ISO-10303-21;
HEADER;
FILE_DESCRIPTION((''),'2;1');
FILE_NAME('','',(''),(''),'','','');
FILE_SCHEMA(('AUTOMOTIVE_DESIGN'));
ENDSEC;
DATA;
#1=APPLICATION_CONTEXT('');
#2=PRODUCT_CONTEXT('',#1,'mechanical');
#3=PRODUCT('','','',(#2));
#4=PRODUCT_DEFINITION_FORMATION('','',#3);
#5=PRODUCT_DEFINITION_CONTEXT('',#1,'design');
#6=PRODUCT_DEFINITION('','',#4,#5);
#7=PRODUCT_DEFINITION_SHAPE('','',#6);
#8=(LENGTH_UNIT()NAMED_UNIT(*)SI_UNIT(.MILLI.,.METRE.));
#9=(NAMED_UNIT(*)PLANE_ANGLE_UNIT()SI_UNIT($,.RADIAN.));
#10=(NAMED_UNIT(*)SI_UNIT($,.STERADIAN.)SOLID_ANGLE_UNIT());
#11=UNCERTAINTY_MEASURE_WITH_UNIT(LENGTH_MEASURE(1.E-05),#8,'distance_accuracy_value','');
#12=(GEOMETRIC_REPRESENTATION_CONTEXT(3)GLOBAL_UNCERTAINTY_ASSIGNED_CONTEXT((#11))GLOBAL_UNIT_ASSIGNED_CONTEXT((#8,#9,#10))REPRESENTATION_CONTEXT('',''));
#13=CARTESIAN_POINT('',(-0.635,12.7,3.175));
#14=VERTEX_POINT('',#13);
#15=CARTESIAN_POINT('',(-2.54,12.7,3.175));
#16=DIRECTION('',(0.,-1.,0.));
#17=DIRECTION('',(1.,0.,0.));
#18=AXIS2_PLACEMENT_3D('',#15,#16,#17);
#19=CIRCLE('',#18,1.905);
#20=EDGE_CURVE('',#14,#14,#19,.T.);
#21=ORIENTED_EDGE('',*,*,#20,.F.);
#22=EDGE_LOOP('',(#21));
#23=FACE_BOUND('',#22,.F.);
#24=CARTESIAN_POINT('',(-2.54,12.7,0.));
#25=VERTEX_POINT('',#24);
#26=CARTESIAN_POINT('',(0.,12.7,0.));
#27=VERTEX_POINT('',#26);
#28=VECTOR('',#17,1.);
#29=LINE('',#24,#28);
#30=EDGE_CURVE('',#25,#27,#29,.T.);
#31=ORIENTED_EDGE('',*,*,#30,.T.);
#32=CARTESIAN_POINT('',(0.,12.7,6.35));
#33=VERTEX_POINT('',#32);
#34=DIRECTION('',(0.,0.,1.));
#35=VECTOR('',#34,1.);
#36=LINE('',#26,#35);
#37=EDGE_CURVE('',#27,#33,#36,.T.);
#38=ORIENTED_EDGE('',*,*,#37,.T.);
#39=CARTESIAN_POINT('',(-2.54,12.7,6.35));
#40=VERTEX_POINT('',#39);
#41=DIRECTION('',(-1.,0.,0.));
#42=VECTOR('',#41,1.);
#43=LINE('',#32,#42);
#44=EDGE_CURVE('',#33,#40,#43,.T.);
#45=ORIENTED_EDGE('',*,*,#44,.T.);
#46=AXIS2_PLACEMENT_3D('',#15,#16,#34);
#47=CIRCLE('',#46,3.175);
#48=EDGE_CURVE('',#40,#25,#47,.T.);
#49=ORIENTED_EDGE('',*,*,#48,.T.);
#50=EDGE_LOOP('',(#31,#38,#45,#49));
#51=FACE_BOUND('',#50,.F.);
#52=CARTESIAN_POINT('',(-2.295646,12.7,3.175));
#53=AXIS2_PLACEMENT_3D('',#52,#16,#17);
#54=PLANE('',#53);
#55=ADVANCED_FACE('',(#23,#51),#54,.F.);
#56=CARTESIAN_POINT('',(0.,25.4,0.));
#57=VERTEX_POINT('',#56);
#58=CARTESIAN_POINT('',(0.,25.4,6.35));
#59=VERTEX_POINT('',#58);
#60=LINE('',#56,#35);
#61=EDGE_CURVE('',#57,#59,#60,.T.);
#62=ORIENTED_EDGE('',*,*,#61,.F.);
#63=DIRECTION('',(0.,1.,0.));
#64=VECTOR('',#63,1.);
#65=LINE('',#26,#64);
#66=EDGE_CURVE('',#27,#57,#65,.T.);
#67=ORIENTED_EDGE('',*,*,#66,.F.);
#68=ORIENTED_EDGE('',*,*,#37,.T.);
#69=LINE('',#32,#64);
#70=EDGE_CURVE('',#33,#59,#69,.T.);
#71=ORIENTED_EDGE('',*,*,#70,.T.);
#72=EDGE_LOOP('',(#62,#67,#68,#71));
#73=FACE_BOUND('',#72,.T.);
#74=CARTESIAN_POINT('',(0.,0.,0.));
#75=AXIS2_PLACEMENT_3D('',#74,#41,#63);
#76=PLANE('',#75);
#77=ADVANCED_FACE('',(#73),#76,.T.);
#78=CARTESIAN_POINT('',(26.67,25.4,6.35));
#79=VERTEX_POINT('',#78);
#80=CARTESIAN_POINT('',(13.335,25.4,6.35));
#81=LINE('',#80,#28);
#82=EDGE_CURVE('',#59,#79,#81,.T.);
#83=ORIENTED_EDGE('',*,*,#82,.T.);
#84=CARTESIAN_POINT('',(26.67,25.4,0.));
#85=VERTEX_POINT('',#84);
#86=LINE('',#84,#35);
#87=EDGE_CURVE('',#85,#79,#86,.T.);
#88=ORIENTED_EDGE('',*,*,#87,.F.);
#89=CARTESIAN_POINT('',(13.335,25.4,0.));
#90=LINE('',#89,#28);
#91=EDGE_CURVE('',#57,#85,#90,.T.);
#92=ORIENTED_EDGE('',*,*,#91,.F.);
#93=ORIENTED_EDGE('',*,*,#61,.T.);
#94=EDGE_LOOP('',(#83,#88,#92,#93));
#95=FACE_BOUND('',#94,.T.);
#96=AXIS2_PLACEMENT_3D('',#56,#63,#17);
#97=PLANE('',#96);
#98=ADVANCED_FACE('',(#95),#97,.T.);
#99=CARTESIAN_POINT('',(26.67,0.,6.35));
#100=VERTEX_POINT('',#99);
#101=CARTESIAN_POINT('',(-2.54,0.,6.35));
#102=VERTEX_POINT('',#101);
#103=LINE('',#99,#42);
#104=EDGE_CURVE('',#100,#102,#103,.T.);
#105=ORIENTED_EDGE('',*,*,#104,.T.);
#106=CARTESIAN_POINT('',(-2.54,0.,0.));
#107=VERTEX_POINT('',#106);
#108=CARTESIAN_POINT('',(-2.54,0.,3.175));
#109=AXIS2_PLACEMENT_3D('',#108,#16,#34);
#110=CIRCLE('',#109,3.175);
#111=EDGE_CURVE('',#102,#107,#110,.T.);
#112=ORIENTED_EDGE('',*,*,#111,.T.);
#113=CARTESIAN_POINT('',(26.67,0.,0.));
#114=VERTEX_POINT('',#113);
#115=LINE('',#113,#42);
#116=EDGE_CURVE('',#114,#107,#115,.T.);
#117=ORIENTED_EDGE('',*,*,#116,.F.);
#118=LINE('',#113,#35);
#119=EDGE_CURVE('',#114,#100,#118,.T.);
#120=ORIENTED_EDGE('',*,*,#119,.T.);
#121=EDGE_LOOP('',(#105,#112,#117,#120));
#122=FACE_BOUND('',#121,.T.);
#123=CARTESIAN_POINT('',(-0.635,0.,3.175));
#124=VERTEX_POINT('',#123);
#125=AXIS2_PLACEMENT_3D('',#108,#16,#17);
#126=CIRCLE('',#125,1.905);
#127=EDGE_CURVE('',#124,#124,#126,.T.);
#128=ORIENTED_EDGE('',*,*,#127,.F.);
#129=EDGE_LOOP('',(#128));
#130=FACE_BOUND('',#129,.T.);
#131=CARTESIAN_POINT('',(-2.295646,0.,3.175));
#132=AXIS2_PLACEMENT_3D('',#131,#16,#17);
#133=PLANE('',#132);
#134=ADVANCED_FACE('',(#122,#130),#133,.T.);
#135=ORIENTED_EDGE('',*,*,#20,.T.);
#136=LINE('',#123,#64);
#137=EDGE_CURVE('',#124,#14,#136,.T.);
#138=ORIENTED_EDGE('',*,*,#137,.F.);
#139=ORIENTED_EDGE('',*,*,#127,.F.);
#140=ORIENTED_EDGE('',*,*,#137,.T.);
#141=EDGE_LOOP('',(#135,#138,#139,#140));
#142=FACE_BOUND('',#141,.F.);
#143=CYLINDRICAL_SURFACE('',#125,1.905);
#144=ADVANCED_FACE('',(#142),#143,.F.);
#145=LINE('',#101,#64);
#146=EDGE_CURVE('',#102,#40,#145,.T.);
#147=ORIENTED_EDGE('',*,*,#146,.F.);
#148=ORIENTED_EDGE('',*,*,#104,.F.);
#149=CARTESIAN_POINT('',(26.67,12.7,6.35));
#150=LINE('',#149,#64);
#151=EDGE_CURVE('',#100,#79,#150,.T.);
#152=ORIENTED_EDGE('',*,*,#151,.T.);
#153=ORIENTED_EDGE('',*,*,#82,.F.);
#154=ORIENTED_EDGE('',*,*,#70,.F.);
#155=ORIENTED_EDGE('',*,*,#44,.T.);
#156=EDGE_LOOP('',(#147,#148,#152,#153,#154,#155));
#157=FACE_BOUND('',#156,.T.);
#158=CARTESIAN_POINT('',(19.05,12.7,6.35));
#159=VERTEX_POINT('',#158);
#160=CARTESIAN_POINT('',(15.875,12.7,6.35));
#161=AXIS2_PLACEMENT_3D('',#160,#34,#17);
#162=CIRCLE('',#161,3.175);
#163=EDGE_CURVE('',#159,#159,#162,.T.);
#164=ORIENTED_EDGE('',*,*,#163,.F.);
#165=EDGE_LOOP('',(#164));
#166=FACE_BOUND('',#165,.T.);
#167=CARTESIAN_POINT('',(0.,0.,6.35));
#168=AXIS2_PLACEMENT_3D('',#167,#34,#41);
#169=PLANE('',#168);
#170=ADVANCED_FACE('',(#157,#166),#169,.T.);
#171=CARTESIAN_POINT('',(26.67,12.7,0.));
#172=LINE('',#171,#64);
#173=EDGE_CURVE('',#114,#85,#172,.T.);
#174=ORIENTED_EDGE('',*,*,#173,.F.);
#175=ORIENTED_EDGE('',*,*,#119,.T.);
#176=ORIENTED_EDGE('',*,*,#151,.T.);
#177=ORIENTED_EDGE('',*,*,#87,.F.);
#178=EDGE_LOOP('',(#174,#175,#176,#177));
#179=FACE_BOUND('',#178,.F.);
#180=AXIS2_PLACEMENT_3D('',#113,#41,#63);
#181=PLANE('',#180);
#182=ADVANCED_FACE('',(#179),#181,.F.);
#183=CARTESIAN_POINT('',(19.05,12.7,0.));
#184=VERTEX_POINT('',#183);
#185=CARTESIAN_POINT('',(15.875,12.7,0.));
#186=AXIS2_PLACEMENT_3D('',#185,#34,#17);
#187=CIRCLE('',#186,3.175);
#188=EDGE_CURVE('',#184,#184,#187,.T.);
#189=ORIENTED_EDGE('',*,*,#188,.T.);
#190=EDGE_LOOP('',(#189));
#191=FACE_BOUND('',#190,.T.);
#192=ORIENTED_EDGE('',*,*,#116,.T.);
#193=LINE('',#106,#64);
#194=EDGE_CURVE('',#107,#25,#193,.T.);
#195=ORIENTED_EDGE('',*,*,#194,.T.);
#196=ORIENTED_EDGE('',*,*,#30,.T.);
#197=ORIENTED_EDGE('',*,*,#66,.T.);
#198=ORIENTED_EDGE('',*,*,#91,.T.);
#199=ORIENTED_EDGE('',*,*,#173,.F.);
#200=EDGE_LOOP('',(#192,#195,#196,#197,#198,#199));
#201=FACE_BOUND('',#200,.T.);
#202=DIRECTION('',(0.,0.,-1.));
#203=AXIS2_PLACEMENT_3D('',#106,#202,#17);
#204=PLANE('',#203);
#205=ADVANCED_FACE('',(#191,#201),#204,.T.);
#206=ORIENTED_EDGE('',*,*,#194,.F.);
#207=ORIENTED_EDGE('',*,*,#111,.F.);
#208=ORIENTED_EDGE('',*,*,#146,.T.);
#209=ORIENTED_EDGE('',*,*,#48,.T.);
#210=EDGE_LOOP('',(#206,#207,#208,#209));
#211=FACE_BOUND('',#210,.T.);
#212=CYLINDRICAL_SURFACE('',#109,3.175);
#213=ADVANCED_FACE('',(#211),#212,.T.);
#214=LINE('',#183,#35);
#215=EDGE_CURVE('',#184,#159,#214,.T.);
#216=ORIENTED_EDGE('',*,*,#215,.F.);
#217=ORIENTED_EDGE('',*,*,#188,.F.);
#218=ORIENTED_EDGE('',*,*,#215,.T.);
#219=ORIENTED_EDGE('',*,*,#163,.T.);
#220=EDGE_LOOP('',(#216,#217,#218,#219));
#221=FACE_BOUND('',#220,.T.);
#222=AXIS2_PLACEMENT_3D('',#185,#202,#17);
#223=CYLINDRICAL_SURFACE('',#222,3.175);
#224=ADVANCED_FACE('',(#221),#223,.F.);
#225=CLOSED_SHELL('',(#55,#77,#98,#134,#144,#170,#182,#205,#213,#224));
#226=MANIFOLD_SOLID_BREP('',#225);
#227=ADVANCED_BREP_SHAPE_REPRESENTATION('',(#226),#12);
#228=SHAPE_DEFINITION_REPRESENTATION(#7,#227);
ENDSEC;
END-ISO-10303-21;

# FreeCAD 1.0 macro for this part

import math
import FreeCAD as App
import Part
import Sketcher

V = App.Vector
Q = App.Units.Quantity


def add_polygon(sketch, points):
    """Adds a closed chain of lines whose ends are joined by coincident constraints."""
    first, n = sketch.GeometryCount, len(points)
    for a, b in zip(points, points[1:] + points[:1]):
        sketch.addGeometry(Part.LineSegment(App.Vector(*a, 0), App.Vector(*b, 0)), False)
    for i in range(n):
        sketch.addConstraint(Sketcher.Constraint("Coincident", first + i, 2, first + (i + 1) % n, 1))

doc = App.newDocument("Part")
body = doc.addObject("PartDesign::Body", "Body")

# Sketch on XY plane
sketch1 = body.newObject("Sketcher::SketchObject", "Sketch")
sketch1.AttachmentSupport = (doc.getObject("XY_Plane"), [""])
sketch1.MapMode = "FlatFace"
add_polygon(sketch1, [(0, 25.4), (0, 0), (26.7, 0), (26.7, 25.4)])  # lines 0-3
sketch1.addGeometry(Part.Circle(V(15.9, 12.7, 0), V(0, 0, 1), 3.2), False)  # 4
sketch1.addConstraint(Sketcher.Constraint("Vertical", 0))
sketch1.addConstraint(Sketcher.Constraint("Horizontal", 1))
sketch1.addConstraint(Sketcher.Constraint("Vertical", 2))
sketch1.addConstraint(Sketcher.Constraint("Horizontal", 3))
sketch1.addConstraint(Sketcher.Constraint("Coincident", 0, 2, -1, 1))
sketch1.addConstraint(Sketcher.Constraint("Diameter", 4, Q("0.25 in")))
sketch1.addConstraint(Sketcher.Constraint("DistanceY", 0, 2, 0, 1, Q("1 in")))
sketch1.addConstraint(Sketcher.Constraint("DistanceX", 1, 1, 1, 2, Q("1.05 in")))
sketch1.addConstraint(Sketcher.Constraint("DistanceY", -1, 1, 4, 3, Q("0.5 in")))
sketch1.addConstraint(Sketcher.Constraint("DistanceX", -1, 1, 4, 3, Q("0.625 in")))
pad1 = body.newObject("PartDesign::Pad", "Pad")
pad1.Profile = sketch1
pad1.Length = Q("0.25 in")

# Sketch on XZ plane
sketch2 = body.newObject("Sketcher::SketchObject", "Sketch001")
sketch2.AttachmentSupport = (doc.getObject("XZ_Plane"), [""])
sketch2.MapMode = "FlatFace"
sketch2.addGeometry(Part.LineSegment(V(0, 0, 0), V(0, 6.3, 0)), False)
sketch2.addGeometry(Part.LineSegment(V(0, 6.3, 0), V(-2.5, 6.3, 0)), False)
sketch2.addGeometry(Part.ArcOfCircle(Part.Circle(V(-2.5, 3.2, 0), V(0, 0, 1), 3.2), math.radians(90), math.radians(270)), False)
sketch2.addGeometry(Part.LineSegment(V(-2.5, 0, 0), V(0, 0, 0)), False)
sketch2.addGeometry(Part.Circle(V(-2.5, 3.2, 0), V(0, 0, 1), 1.9), False)
sketch2.addConstraint(Sketcher.Constraint("Coincident", 0, 2, 1, 1))
sketch2.addConstraint(Sketcher.Constraint("Tangent", 1, 2, 2, 1))
sketch2.addConstraint(Sketcher.Constraint("Tangent", 2, 2, 3, 1))
sketch2.addConstraint(Sketcher.Constraint("Coincident", 3, 2, 0, 1))
sketch2.addConstraint(Sketcher.Constraint("Vertical", 0))
sketch2.addConstraint(Sketcher.Constraint("Horizontal", 1))
sketch2.addConstraint(Sketcher.Constraint("Horizontal", 3))
sketch2.addConstraint(Sketcher.Constraint("Coincident", 3, 2, -1, 1))
sketch2.addConstraint(Sketcher.Constraint("Coincident", 4, 3, 2, 3))
sketch2.addConstraint(Sketcher.Constraint("Diameter", 4, Q("0.15 in")))
sketch2.addConstraint(Sketcher.Constraint("DistanceX", 1, 2, 1, 1, Q("0.1 in")))
sketch2.addConstraint(Sketcher.Constraint("Radius", 2, Q("0.125 in")))
pad2 = body.newObject("PartDesign::Pad", "Pad001")
pad2.Profile = sketch2
pad2.Length = Q("0.5 in")
pad2.Reversed = True

doc.recompute()
